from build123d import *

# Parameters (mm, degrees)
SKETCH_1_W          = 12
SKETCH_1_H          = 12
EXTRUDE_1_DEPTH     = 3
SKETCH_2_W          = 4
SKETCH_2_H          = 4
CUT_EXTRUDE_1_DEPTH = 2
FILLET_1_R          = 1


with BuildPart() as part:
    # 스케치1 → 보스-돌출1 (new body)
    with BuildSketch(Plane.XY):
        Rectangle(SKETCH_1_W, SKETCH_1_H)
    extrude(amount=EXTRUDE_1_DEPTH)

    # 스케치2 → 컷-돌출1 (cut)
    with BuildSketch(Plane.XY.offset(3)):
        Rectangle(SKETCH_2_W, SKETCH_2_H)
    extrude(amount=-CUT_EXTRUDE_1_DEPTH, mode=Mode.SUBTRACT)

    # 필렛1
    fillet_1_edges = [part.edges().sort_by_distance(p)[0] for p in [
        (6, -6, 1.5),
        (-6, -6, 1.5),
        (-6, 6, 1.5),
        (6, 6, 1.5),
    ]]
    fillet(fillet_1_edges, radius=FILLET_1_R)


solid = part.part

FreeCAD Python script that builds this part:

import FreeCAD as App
import Part
import Sketcher


def edges_at(feature, points):
    """Names of the edges that pass closest to the given points."""
    edges = feature.Shape.Edges
    near = lambda p: min(range(len(edges)), key=lambda i: edges[i].distToShape(Part.Vertex(*p))[0])
    return sorted({f"Edge{near(p) + 1}" for p in points})


def add_polygon(sketch, points):
    """Adds a closed chain of lines whose ends are joined by coincident constraints."""
    first, n = sketch.GeometryCount, len(points)
    for a, b in zip(points, points[1:] + points[:1]):
        sketch.addGeometry(Part.LineSegment(App.Vector(*a, 0), App.Vector(*b, 0)), False)
    for i in range(n):
        sketch.addConstraint(Sketcher.Constraint("Coincident", first + i, 2, first + (i + 1) % n, 1))

doc = App.newDocument("Part")
body = doc.addObject("PartDesign::Body", "Body")

sketch1 = doc.addObject("Sketcher::SketchObject", "Sketch")
body.addObject(sketch1)
sketch1.AttachmentSupport = (doc.XY_Plane, [""])
sketch1.MapMode = "FlatFace"
add_polygon(sketch1, [(-6, 6), (-6, -6), (6, -6), (6, 6)])
sketch1.addConstraint([
    Sketcher.Constraint("Vertical", 0),
    Sketcher.Constraint("Horizontal", 1),
    Sketcher.Constraint("Vertical", 2),
    Sketcher.Constraint("Horizontal", 3),
    Sketcher.Constraint("Symmetric", 0, 2, 2, 2, -1, 1),
    Sketcher.Constraint("Equal", 3, 0),
    Sketcher.Constraint("DistanceX", 1, 1, 1, 2, 12.0),
])
pad1 = doc.addObject("PartDesign::Pad", "Pad")
body.addObject(pad1)
pad1.Profile = sketch1
pad1.Length = 3

sketch2 = doc.addObject("Sketcher::SketchObject", "Sketch001")
body.addObject(sketch2)
sketch2.AttachmentSupport = (doc.XY_Plane, [""])
sketch2.MapMode = "FlatFace"
sketch2.AttachmentOffset = App.Placement(App.Vector(0, 0, 3), App.Rotation())
add_polygon(sketch2, [(-2, 2), (-2, -2), (2, -2), (2, 2)])
sketch2.addConstraint([
    Sketcher.Constraint("Vertical", 0),
    Sketcher.Constraint("Horizontal", 1),
    Sketcher.Constraint("Vertical", 2),
    Sketcher.Constraint("Horizontal", 3),
    Sketcher.Constraint("Symmetric", 0, 2, 2, 2, -1, 1),
    Sketcher.Constraint("Equal", 3, 0),
    Sketcher.Constraint("DistanceX", 1, 1, 1, 2, 4.0),
])
pocket1 = doc.addObject("PartDesign::Pocket", "Pocket")
body.addObject(pocket1)
pocket1.Profile = sketch2
pocket1.Length = 2
doc.recompute()

fillet = doc.addObject("PartDesign::Fillet", "Fillet")
body.addObject(fillet)
fillet.Base = (pocket1, edges_at(pocket1, [
    (6, -6, 1.5),
    (-6, -6, 1.5),
    (-6, 6, 1.5),
    (6, 6, 1.5),
]))
fillet.Radius = 1

doc.recompute()
